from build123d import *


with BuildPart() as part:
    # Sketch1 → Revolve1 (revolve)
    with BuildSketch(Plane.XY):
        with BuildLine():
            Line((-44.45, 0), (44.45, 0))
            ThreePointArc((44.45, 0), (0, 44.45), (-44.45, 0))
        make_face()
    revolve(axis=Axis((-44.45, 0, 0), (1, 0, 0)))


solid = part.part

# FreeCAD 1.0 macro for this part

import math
import FreeCAD as App
import Part
import Sketcher

V = App.Vector
Q = App.Units.Quantity

doc = App.newDocument("Part")
body = doc.addObject("PartDesign::Body", "Body")

sketch1 = body.newObject("Sketcher::SketchObject", "Sketch")
sketch1.AttachmentSupport = (doc.getObject("XY_Plane"), [""])
sketch1.MapMode = "FlatFace"
sketch1.addGeometry(Part.LineSegment(V(-44.45, 0, 0), V(44.45, 0, 0)), False)
sketch1.addGeometry(Part.ArcOfCircle(Part.Circle(V(0, 0, 0), V(0, 0, 1), 44.45), math.radians(0), math.radians(180)), False)
sketch1.addConstraint(Sketcher.Constraint("Coincident", 0, 1, 1, 2))
sketch1.addConstraint(Sketcher.Constraint("Coincident", 1, 1, 0, 2))
sketch1.addConstraint(Sketcher.Constraint("Horizontal", 0))
sketch1.addConstraint(Sketcher.Constraint("Coincident", 1, 3, -1, 1))
sketch1.addConstraint(Sketcher.Constraint("PointOnObject", 0, 1, -1))
sketch1.addConstraint(Sketcher.Constraint("Radius", 1, Q("1.75 in")))
revolution = body.newObject("PartDesign::Revolution", "Revolution")
revolution.Profile = sketch1
revolution.ReferenceAxis = (sketch1, ["H_Axis"])
revolution.Angle = 360

doc.recompute()
